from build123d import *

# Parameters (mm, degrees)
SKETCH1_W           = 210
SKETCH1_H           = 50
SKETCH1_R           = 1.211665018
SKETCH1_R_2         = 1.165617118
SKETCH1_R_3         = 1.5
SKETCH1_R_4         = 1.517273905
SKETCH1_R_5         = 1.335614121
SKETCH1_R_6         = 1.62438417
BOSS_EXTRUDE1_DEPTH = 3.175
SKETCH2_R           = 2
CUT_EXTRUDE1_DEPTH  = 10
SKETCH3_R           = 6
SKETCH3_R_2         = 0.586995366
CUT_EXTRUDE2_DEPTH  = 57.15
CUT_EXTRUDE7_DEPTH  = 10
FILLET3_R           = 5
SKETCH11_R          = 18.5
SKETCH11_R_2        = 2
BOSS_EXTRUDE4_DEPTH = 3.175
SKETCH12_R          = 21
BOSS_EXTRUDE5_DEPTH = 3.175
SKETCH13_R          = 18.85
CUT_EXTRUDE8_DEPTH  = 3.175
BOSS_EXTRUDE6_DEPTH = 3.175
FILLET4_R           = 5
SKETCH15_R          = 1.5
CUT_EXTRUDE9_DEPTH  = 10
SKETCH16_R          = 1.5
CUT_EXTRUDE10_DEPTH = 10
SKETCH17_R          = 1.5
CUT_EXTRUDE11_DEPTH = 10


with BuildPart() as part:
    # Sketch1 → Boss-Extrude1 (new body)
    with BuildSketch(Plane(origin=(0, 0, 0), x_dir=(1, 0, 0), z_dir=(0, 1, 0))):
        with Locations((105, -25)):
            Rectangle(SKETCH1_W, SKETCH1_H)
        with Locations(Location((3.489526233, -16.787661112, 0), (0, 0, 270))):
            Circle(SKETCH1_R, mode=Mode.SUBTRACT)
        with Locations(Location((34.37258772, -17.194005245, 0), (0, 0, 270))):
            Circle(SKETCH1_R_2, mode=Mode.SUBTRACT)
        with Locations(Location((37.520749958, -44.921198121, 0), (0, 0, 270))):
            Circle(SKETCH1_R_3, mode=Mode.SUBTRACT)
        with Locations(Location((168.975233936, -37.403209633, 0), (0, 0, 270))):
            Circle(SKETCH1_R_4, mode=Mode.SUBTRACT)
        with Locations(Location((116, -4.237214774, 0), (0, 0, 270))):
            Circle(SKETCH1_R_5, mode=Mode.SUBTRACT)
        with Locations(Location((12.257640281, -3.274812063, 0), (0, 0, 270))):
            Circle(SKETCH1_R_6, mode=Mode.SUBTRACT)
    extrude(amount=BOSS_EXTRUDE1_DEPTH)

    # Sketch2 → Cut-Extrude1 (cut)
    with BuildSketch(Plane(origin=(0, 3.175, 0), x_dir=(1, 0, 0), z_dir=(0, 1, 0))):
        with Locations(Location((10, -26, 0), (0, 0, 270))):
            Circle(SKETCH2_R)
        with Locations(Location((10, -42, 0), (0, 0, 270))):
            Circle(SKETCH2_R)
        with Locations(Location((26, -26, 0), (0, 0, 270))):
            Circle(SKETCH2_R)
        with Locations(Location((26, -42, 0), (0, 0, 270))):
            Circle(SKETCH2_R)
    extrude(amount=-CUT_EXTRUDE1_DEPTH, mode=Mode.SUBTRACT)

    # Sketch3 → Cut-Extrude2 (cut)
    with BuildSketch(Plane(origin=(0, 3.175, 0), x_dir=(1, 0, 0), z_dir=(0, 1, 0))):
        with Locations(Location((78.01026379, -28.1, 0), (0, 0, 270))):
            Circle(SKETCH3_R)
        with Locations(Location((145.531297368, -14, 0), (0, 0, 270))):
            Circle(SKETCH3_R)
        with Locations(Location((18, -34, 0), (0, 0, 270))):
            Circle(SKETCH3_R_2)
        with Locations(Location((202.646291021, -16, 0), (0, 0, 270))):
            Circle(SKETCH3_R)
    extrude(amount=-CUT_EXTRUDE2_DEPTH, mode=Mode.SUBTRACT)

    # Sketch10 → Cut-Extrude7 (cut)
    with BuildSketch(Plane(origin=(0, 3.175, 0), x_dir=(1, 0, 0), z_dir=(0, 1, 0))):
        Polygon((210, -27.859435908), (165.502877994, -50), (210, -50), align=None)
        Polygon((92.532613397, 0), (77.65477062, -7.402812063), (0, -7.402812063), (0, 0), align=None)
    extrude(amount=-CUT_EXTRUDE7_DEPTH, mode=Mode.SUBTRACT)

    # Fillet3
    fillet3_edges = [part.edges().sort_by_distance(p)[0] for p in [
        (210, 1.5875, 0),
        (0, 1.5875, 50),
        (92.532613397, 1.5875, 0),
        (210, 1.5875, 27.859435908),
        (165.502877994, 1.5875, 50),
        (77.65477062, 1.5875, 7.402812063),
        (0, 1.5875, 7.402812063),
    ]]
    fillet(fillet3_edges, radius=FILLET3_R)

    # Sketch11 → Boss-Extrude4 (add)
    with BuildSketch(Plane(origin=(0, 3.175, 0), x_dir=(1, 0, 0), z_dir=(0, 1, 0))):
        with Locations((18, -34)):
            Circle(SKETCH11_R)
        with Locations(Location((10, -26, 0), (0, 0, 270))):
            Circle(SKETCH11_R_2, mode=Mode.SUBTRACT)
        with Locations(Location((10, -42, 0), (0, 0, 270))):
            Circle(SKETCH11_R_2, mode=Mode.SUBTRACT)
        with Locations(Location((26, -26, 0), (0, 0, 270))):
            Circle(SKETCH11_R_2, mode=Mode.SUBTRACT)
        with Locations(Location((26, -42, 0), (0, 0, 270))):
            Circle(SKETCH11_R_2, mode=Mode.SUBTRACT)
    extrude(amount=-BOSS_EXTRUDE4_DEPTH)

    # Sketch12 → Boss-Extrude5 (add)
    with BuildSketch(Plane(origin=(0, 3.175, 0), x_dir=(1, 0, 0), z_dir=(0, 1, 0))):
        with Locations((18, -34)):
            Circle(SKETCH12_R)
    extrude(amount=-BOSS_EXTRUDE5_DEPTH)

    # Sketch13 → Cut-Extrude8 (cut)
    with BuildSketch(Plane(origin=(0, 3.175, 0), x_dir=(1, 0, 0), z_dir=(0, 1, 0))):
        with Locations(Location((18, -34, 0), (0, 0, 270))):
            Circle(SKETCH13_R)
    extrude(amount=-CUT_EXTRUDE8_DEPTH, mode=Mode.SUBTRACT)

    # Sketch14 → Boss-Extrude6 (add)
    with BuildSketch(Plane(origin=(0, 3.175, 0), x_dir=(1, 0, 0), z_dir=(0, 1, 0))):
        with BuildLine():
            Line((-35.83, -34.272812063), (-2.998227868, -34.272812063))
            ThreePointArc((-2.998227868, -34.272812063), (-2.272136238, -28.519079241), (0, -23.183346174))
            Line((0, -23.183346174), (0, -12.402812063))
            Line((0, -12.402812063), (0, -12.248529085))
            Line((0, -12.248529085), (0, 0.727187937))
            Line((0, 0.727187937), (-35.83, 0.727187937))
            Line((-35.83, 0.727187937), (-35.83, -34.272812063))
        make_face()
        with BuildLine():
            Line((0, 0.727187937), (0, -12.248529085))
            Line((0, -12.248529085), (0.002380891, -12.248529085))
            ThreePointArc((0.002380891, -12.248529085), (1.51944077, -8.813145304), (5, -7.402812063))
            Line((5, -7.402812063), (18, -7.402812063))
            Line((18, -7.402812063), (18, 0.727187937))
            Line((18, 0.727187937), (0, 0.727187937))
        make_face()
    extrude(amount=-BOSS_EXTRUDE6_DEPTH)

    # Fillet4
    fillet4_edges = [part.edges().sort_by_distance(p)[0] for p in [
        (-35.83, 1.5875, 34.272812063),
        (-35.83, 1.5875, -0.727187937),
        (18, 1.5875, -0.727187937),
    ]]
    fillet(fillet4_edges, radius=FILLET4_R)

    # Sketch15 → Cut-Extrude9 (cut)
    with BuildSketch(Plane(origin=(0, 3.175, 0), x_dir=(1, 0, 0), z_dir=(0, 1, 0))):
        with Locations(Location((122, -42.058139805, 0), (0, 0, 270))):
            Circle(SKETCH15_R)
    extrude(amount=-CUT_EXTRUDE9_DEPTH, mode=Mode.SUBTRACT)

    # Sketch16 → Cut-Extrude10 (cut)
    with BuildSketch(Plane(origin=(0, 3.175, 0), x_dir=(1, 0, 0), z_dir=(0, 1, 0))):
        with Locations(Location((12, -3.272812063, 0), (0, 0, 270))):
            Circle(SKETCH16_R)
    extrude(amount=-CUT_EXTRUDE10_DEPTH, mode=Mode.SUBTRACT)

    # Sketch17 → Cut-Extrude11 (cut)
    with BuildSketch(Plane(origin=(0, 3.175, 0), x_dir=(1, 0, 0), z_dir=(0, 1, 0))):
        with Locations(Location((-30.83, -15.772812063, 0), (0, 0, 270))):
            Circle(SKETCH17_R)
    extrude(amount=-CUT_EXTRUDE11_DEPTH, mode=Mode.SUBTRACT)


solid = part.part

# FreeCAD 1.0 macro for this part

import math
import FreeCAD as App
import Part
import Sketcher
from FreeCAD import Vector
Q = App.Units.Quantity


def edges_at(feature, points):
    """Names of the edges that pass closest to the given points."""
    edges = feature.Shape.Edges
    near = lambda p: min(range(len(edges)), key=lambda i: edges[i].distToShape(Part.Vertex(*p))[0])
    return sorted({f"Edge{near(p) + 1}" for p in points})

doc = App.newDocument("Part")
body = doc.addObject("PartDesign::Body", "Body")

sketch1 = body.newObject("Sketcher::SketchObject", "Sketch")
sketch1.AttachmentSupport = (doc.getObject("XZ_Plane"), [""])
sketch1.MapMode = "FlatFace"
sketch1.addGeometry(Part.LineSegment(Vector(0, 0, 0), Vector(0, 50, 0)), False)
sketch1.addGeometry(Part.LineSegment(Vector(0, 50, 0), Vector(210, 50, 0)), False)
sketch1.addGeometry(Part.LineSegment(Vector(210, 50, 0), Vector(210, 0, 0)), False)
sketch1.addGeometry(Part.LineSegment(Vector(210, 0, 0), Vector(0, 0, 0)), False)
sketch1.addGeometry(Part.Circle(Vector(37.52075, 44.921198, 0), Vector(0, 0, 1), 1.5), False)
sketch1.addGeometry(Part.Circle(Vector(168.975234, 37.40321, 0), Vector(0, 0, 1), 1.517274), False)
sketch1.addGeometry(Part.Circle(Vector(3.489526, 16.787661, 0), Vector(0, 0, 1), 1.211665), False)
sketch1.addGeometry(Part.Circle(Vector(34.372588, 17.194005, 0), Vector(0, 0, 1), 1.165617), False)
sketch1.addGeometry(Part.Circle(Vector(12.25764, 3.274812, 0), Vector(0, 0, 1), 1.624384), False)
sketch1.addGeometry(Part.Circle(Vector(116, 4.237215, 0), Vector(0, 0, 1), 1.335614), False)
sketch1.addConstraint(Sketcher.Constraint("Coincident", 0, 2, 1, 1))
sketch1.addConstraint(Sketcher.Constraint("Coincident", 1, 2, 2, 1))
sketch1.addConstraint(Sketcher.Constraint("Coincident", 2, 2, 3, 1))
sketch1.addConstraint(Sketcher.Constraint("Coincident", 3, 2, 0, 1))
sketch1.addConstraint(Sketcher.Constraint("Vertical", 0))
sketch1.addConstraint(Sketcher.Constraint("Horizontal", 1))
sketch1.addConstraint(Sketcher.Constraint("Vertical", 2))
sketch1.addConstraint(Sketcher.Constraint("Horizontal", 3))
sketch1.addConstraint(Sketcher.Constraint("Coincident", 3, 2, -1, 1))
sketch1.addConstraint(Sketcher.Constraint("Diameter", 4, Q("3 mm")))
sketch1.addConstraint(Sketcher.Constraint("DistanceX", 1, 1, 1, 2, Q("210 mm")))
sketch1.addConstraint(Sketcher.Constraint("DistanceY", 0, 1, 0, 2, Q("50 mm")))
sketch1.addConstraint(Sketcher.Constraint("DistanceX", -1, 1, 9, 3, Q("116 mm")))
sketch1.addConstraint(Sketcher.Constraint("Diameter", 6, Q("2.42333 mm")))
sketch1.addConstraint(Sketcher.Constraint("Diameter", 8, Q("3.248768 mm")))
sketch1.addConstraint(Sketcher.Constraint("Diameter", 9, Q("2.671228 mm")))
sketch1.addConstraint(Sketcher.Constraint("Diameter", 5, Q("3.034548 mm")))
sketch1.addConstraint(Sketcher.Constraint("Diameter", 7, Q("2.331234 mm")))
sketch1.addConstraint(Sketcher.Constraint("DistanceY", -1, 1, 4, 3, Q("44.921198 mm")))
sketch1.addConstraint(Sketcher.Constraint("DistanceX", -1, 1, 4, 3, Q("37.52075 mm")))
sketch1.addConstraint(Sketcher.Constraint("DistanceY", -1, 1, 5, 3, Q("37.40321 mm")))
sketch1.addConstraint(Sketcher.Constraint("DistanceY", -1, 1, 6, 3, Q("16.787661 mm")))
sketch1.addConstraint(Sketcher.Constraint("DistanceX", -1, 1, 8, 3, Q("12.25764 mm")))
sketch1.addConstraint(Sketcher.Constraint("DistanceX", 6, 3, 7, 3, Q("30.883061 mm")))
sketch1.addConstraint(Sketcher.Constraint("DistanceY", 8, 3, 6, 3, Q("13.512849 mm")))
sketch1.addConstraint(Sketcher.Constraint("DistanceY", 9, 3, 7, 3, Q("12.95679 mm")))
sketch1.addConstraint(Sketcher.Constraint("DistanceX", -1, 1, 5, 3, Q("168.975234 mm")))
sketch1.addConstraint(Sketcher.Constraint("DistanceX", -1, 1, 6, 3, Q("3.489526 mm")))
sketch1.addConstraint(Sketcher.Constraint("DistanceY", -1, 1, 7, 3, Q("17.194005 mm")))
pad1 = body.newObject("PartDesign::Pad", "Pad")
pad1.Profile = sketch1
pad1.Length = 3.175
pad1.Reversed = True

sketch2 = body.newObject("Sketcher::SketchObject", "Sketch001")
sketch2.AttachmentSupport = (doc.getObject("XZ_Plane"), [""])
sketch2.MapMode = "FlatFace"
sketch2.AttachmentOffset = App.Placement(Vector(0, 0, -3.175), App.Rotation())
sketch2.addGeometry(Part.Circle(Vector(10, 26, 0), Vector(0, 0, 1), 2), False)
sketch2.addGeometry(Part.Circle(Vector(10, 42, 0), Vector(0, 0, 1), 2), False)
sketch2.addGeometry(Part.Circle(Vector(26, 26, 0), Vector(0, 0, 1), 2), False)
sketch2.addGeometry(Part.Circle(Vector(26, 42, 0), Vector(0, 0, 1), 2), False)
sketch2.addConstraint(Sketcher.Constraint("Equal", 0, 1))
sketch2.addConstraint(Sketcher.Constraint("Equal", 1, 2))
sketch2.addConstraint(Sketcher.Constraint("Equal", 2, 3))
sketch2.addConstraint(Sketcher.Constraint("Horizontal", 0, 3, 2, 3))
sketch2.addConstraint(Sketcher.Constraint("Horizontal", 1, 3, 3, 3))
sketch2.addConstraint(Sketcher.Constraint("Vertical", 0, 3, 1, 3))
sketch2.addConstraint(Sketcher.Constraint("Vertical", 2, 3, 3, 3))
sketch2.addConstraint(Sketcher.Constraint("Diameter", 0, Q("4 mm")))
sketch2.addConstraint(Sketcher.Constraint("DistanceX", -1, 1, 0, 3, Q("10 mm")))
sketch2.addConstraint(Sketcher.Constraint("DistanceY", -1, 1, 0, 3, Q("26 mm")))
sketch2.addConstraint(Sketcher.Constraint("DistanceY", -1, 1, 1, 3, Q("42 mm")))
sketch2.addConstraint(Sketcher.Constraint("DistanceX", -1, 1, 2, 3, Q("26 mm")))
pocket1 = body.newObject("PartDesign::Pocket", "Pocket")
pocket1.Profile = sketch2
pocket1.Length = 10
pocket1.Reversed = True

sketch3 = body.newObject("Sketcher::SketchObject", "Sketch002")
sketch3.AttachmentSupport = (doc.getObject("XZ_Plane"), [""])
sketch3.MapMode = "FlatFace"
sketch3.AttachmentOffset = App.Placement(Vector(0, 0, -3.175), App.Rotation())
sketch3.addGeometry(Part.Circle(Vector(78.010264, 28.1, 0), Vector(0, 0, 1), 6), False)
sketch3.addGeometry(Part.Circle(Vector(145.531297, 14, 0), Vector(0, 0, 1), 6), False)
sketch3.addGeometry(Part.Circle(Vector(18, 34, 0), Vector(0, 0, 1), 0.586995), False)
sketch3.addGeometry(Part.Circle(Vector(202.646291, 16, 0), Vector(0, 0, 1), 6), False)
sketch3.addConstraint(Sketcher.Constraint("Equal", 0, 1))
sketch3.addConstraint(Sketcher.Constraint("Equal", 1, 3))
sketch3.addConstraint(Sketcher.Constraint("Diameter", 0, Q("12 mm")))
sketch3.addConstraint(Sketcher.Constraint("DistanceY", -1, 1, 1, 3, Q("14 mm")))
sketch3.addConstraint(Sketcher.Constraint("DistanceX", -1, 1, 2, 3, Q("18 mm")))
sketch3.addConstraint(Sketcher.Constraint("DistanceY", -1, 1, 2, 3, Q("34 mm")))
sketch3.addConstraint(Sketcher.Constraint("DistanceY", -1, 1, 3, 3, Q("16 mm")))
sketch3.addConstraint(Sketcher.Constraint("DistanceY", -1, 1, 0, 3, Q("28.1 mm")))
sketch3.addConstraint(Sketcher.Constraint("Diameter", 2, Q("1.173991 mm")))
sketch3.addConstraint(Sketcher.Constraint("DistanceX", -1, 1, 3, 3, Q("202.646291 mm")))
sketch3.addConstraint(Sketcher.Constraint("DistanceX", -1, 1, 0, 3, Q("78.010264 mm")))
sketch3.addConstraint(Sketcher.Constraint("DistanceX", -1, 1, 1, 3, Q("145.531297 mm")))
pocket2 = body.newObject("PartDesign::Pocket", "Pocket001")
pocket2.Profile = sketch3
pocket2.Length = 57.15
pocket2.Reversed = True

sketch4 = body.newObject("Sketcher::SketchObject", "Sketch003")
sketch4.AttachmentSupport = (doc.getObject("XZ_Plane"), [""])
sketch4.MapMode = "FlatFace"
sketch4.AttachmentOffset = App.Placement(Vector(0, 0, -3.175), App.Rotation())
sketch4.addGeometry(Part.LineSegment(Vector(210, 27.859436, 0), Vector(165.502878, 50, 0)), False)
sketch4.addGeometry(Part.LineSegment(Vector(165.502878, 50, 0), Vector(210, 50, 0)), False)
sketch4.addGeometry(Part.LineSegment(Vector(210, 50, 0), Vector(210, 27.859436, 0)), False)
sketch4.addGeometry(Part.LineSegment(Vector(77.654771, 7.402812, 0), Vector(92.532613, 0, 0)), False)
sketch4.addGeometry(Part.LineSegment(Vector(92.532613, 0, 0), Vector(0, 0, 0)), False)
sketch4.addGeometry(Part.LineSegment(Vector(0, 0, 0), Vector(0, 7.402812, 0)), False)
sketch4.addGeometry(Part.LineSegment(Vector(0, 7.402812, 0), Vector(77.654771, 7.402812, 0)), False)
sketch4.addConstraint(Sketcher.Constraint("Coincident", 0, 2, 1, 1))
sketch4.addConstraint(Sketcher.Constraint("Coincident", 1, 2, 2, 1))
sketch4.addConstraint(Sketcher.Constraint("Coincident", 2, 2, 0, 1))
sketch4.addConstraint(Sketcher.Constraint("Coincident", 3, 2, 4, 1))
sketch4.addConstraint(Sketcher.Constraint("Coincident", 4, 2, 5, 1))
sketch4.addConstraint(Sketcher.Constraint("Coincident", 5, 2, 6, 1))
sketch4.addConstraint(Sketcher.Constraint("Coincident", 6, 2, 3, 1))
sketch4.addConstraint(Sketcher.Constraint("Horizontal", 1))
sketch4.addConstraint(Sketcher.Constraint("Vertical", 2))
sketch4.addConstraint(Sketcher.Constraint("Horizontal", 4))
sketch4.addConstraint(Sketcher.Constraint("Vertical", 5))
sketch4.addConstraint(Sketcher.Constraint("Horizontal", 6))
sketch4.addConstraint(Sketcher.Constraint("Coincident", 4, 2, -1, 1))
sketch4.addConstraint(Sketcher.Constraint("Parallel", 0, 3))
sketch4.addConstraint(Sketcher.Constraint("DistanceY", -1, 1, 0, 2, Q("50 mm")))
sketch4.addConstraint(Sketcher.Constraint("DistanceX", -1, 1, 1, 2, Q("210 mm")))
sketch4.addConstraint(Sketcher.Constraint("DistanceX", 6, 1, 6, 2, Q("77.654771 mm")))
sketch4.addConstraint(Sketcher.Constraint("Distance", 0, Q("49.701091 mm")))
sketch4.addConstraint(Sketcher.Constraint("DistanceX", 1, 1, 1, 2, Q("44.497122 mm")))
sketch4.addConstraint(Sketcher.Constraint("DistanceX", 4, 2, 4, 1, Q("92.532613 mm")))
pocket3 = body.newObject("PartDesign::Pocket", "Pocket002")
pocket3.Profile = sketch4
pocket3.Length = 10
pocket3.Reversed = True
doc.recompute()

fillet = body.newObject("PartDesign::Fillet", "Fillet")
fillet.Base = (pocket3, edges_at(pocket3, [
    (210, 1.587, 0),
    (0, 1.587, 50),
    (92.533, 1.587, 0),
    (210, 1.587, 27.859),
    (165.503, 1.587, 50),
    (77.655, 1.587, 7.403),
    (0, 1.587, 7.403),
]))
fillet.Radius = 5

sketch5 = body.newObject("Sketcher::SketchObject", "Sketch004")
sketch5.AttachmentSupport = (doc.getObject("XZ_Plane"), [""])
sketch5.MapMode = "FlatFace"
sketch5.AttachmentOffset = App.Placement(Vector(0, 0, -3.175), App.Rotation())
sketch5.addGeometry(Part.Circle(Vector(18, 34, 0), Vector(0, 0, 1), 18.5), False)
sketch5.addGeometry(Part.Circle(Vector(10, 42, 0), Vector(0, 0, 1), 2), False)
sketch5.addGeometry(Part.Circle(Vector(26, 42, 0), Vector(0, 0, 1), 2), False)
sketch5.addGeometry(Part.Circle(Vector(10, 26, 0), Vector(0, 0, 1), 2), False)
sketch5.addGeometry(Part.Circle(Vector(26, 26, 0), Vector(0, 0, 1), 2), False)
sketch5.addConstraint(Sketcher.Constraint("Equal", 1, 2))
sketch5.addConstraint(Sketcher.Constraint("Equal", 2, 3))
sketch5.addConstraint(Sketcher.Constraint("Equal", 3, 4))
sketch5.addConstraint(Sketcher.Constraint("Horizontal", 1, 3, 2, 3))
sketch5.addConstraint(Sketcher.Constraint("Horizontal", 3, 3, 4, 3))
sketch5.addConstraint(Sketcher.Constraint("Vertical", 1, 3, 3, 3))
sketch5.addConstraint(Sketcher.Constraint("Vertical", 2, 3, 4, 3))
sketch5.addConstraint(Sketcher.Constraint("Diameter", 0, Q("37 mm")))
sketch5.addConstraint(Sketcher.Constraint("Diameter", 1, Q("4 mm")))
sketch5.addConstraint(Sketcher.Constraint("DistanceX", -1, 1, 0, 3, Q("18 mm")))
sketch5.addConstraint(Sketcher.Constraint("DistanceY", -1, 1, 0, 3, Q("34 mm")))
sketch5.addConstraint(Sketcher.Constraint("DistanceX", -1, 1, 1, 3, Q("10 mm")))
sketch5.addConstraint(Sketcher.Constraint("DistanceY", -1, 1, 1, 3, Q("42 mm")))
sketch5.addConstraint(Sketcher.Constraint("DistanceX", -1, 1, 2, 3, Q("26 mm")))
sketch5.addConstraint(Sketcher.Constraint("DistanceY", -1, 1, 3, 3, Q("26 mm")))
pad2 = body.newObject("PartDesign::Pad", "Pad001")
pad2.Profile = sketch5
pad2.Length = 3.175

sketch6 = body.newObject("Sketcher::SketchObject", "Sketch005")
sketch6.AttachmentSupport = (doc.getObject("XZ_Plane"), [""])
sketch6.MapMode = "FlatFace"
sketch6.AttachmentOffset = App.Placement(Vector(0, 0, -3.175), App.Rotation())
sketch6.addGeometry(Part.Circle(Vector(18, 34, 0), Vector(0, 0, 1), 21), False)
sketch6.addConstraint(Sketcher.Constraint("Diameter", 0, Q("42 mm")))
sketch6.addConstraint(Sketcher.Constraint("DistanceX", -1, 1, 0, 3, Q("18 mm")))
sketch6.addConstraint(Sketcher.Constraint("DistanceY", -1, 1, 0, 3, Q("34 mm")))
pad3 = body.newObject("PartDesign::Pad", "Pad002")
pad3.Profile = sketch6
pad3.Length = 3.175

sketch7 = body.newObject("Sketcher::SketchObject", "Sketch006")
sketch7.AttachmentSupport = (doc.getObject("XZ_Plane"), [""])
sketch7.MapMode = "FlatFace"
sketch7.AttachmentOffset = App.Placement(Vector(0, 0, -3.175), App.Rotation())
sketch7.addGeometry(Part.Circle(Vector(18, 34, 0), Vector(0, 0, 1), 18.85), False)
sketch7.addConstraint(Sketcher.Constraint("Diameter", 0, Q("37.7 mm")))
sketch7.addConstraint(Sketcher.Constraint("DistanceX", -1, 1, 0, 3, Q("18 mm")))
sketch7.addConstraint(Sketcher.Constraint("DistanceY", -1, 1, 0, 3, Q("34 mm")))
pocket4 = body.newObject("PartDesign::Pocket", "Pocket003")
pocket4.Profile = sketch7
pocket4.Length = 3.175
pocket4.Reversed = True

sketch8 = body.newObject("Sketcher::SketchObject", "Sketch007")
sketch8.AttachmentSupport = (doc.getObject("XZ_Plane"), [""])
sketch8.MapMode = "FlatFace"
sketch8.AttachmentOffset = App.Placement(Vector(0, 0, -3.175), App.Rotation())
sketch8.addGeometry(Part.LineSegment(Vector(-35.83, 34.272812, 0), Vector(-2.998228, 34.272812, 0)), False)
sketch8.addGeometry(Part.ArcOfCircle(Part.Circle(Vector(18, 34, 0), Vector(0, 0, 1), 21), math.radians(179.255647), math.radians(211.002719)), False)
sketch8.addGeometry(Part.LineSegment(Vector(0, 23.183346, 0), Vector(0, 12.248529, 0)), False)
sketch8.addGeometry(Part.LineSegment(Vector(0, 12.248529, 0), Vector(0.002381, 12.248529, 0)), False)
sketch8.addGeometry(Part.ArcOfCircle(Part.Circle(Vector(5, 12.402812, 0), Vector(0, 0, 1), 5), math.radians(-178.231767), math.radians(-90)), False)
sketch8.addGeometry(Part.LineSegment(Vector(5, 7.402812, 0), Vector(18, 7.402812, 0)), False)
sketch8.addGeometry(Part.LineSegment(Vector(18, 7.402812, 0), Vector(18, -0.727188, 0)), False)
sketch8.addGeometry(Part.LineSegment(Vector(18, -0.727188, 0), Vector(-35.83, -0.727188, 0)), False)
sketch8.addGeometry(Part.LineSegment(Vector(-35.83, -0.727188, 0), Vector(-35.83, 34.272812, 0)), False)
sketch8.addConstraint(Sketcher.Constraint("Coincident", 0, 2, 1, 1))
sketch8.addConstraint(Sketcher.Constraint("Coincident", 1, 2, 2, 1))
sketch8.addConstraint(Sketcher.Constraint("Coincident", 2, 2, 3, 1))
sketch8.addConstraint(Sketcher.Constraint("Coincident", 3, 2, 4, 1))
sketch8.addConstraint(Sketcher.Constraint("Tangent", 4, 2, 5, 1))
sketch8.addConstraint(Sketcher.Constraint("Coincident", 5, 2, 6, 1))
sketch8.addConstraint(Sketcher.Constraint("Coincident", 6, 2, 7, 1))
sketch8.addConstraint(Sketcher.Constraint("Coincident", 7, 2, 8, 1))
sketch8.addConstraint(Sketcher.Constraint("Coincident", 8, 2, 0, 1))
sketch8.addConstraint(Sketcher.Constraint("Horizontal", 0))
sketch8.addConstraint(Sketcher.Constraint("Vertical", 2))
sketch8.addConstraint(Sketcher.Constraint("Horizontal", 3))
sketch8.addConstraint(Sketcher.Constraint("Horizontal", 5))
sketch8.addConstraint(Sketcher.Constraint("Vertical", 6))
sketch8.addConstraint(Sketcher.Constraint("Horizontal", 7))
sketch8.addConstraint(Sketcher.Constraint("Vertical", 8))
sketch8.addConstraint(Sketcher.Constraint("PointOnObject", 1, 2, -2))
sketch8.addConstraint(Sketcher.Constraint("Vertical", 1, 3, 5, 2))
sketch8.addConstraint(Sketcher.Constraint("Radius", 1, Q("21 mm")))
sketch8.addConstraint(Sketcher.Constraint("Radius", 4, Q("5 mm")))
sketch8.addConstraint(Sketcher.Constraint("DistanceX", 5, 1, 5, 2, Q("13 mm")))
sketch8.addConstraint(Sketcher.Constraint("DistanceY", 8, 1, 8, 2, Q("35 mm")))
sketch8.addConstraint(Sketcher.Constraint("DistanceX", -1, 1, 1, 3, Q("18 mm")))
sketch8.addConstraint(Sketcher.Constraint("DistanceY", -1, 1, 1, 3, Q("34 mm")))
sketch8.addConstraint(Sketcher.Constraint("DistanceX", 7, 2, 7, 1, Q("53.83 mm")))
sketch8.addConstraint(Sketcher.Constraint("DistanceY", 6, 2, 6, 1, Q("8.13 mm")))
sketch8.addConstraint(Sketcher.Constraint("DistanceX", 3, 1, 3, 2, Q("0.002381 mm")))
sketch8.addConstraint(Sketcher.Constraint("DistanceX", 0, 1, 0, 2, Q("32.831772 mm")))
pad4 = body.newObject("PartDesign::Pad", "Pad003")
pad4.Profile = sketch8
pad4.Length = 3.175
doc.recompute()

fillet2 = body.newObject("PartDesign::Fillet", "Fillet001")
fillet2.Base = (pad4, edges_at(pad4, [(-35.83, 1.587, 34.273), (-35.83, 1.587, -0.727), (18, 1.587, -0.727)]))
fillet2.Radius = 5

sketch9 = body.newObject("Sketcher::SketchObject", "Sketch008")
sketch9.AttachmentSupport = (doc.getObject("XZ_Plane"), [""])
sketch9.MapMode = "FlatFace"
sketch9.AttachmentOffset = App.Placement(Vector(0, 0, -3.175), App.Rotation())
sketch9.addGeometry(Part.Circle(Vector(122, 42.05814, 0), Vector(0, 0, 1), 1.5), False)
sketch9.addConstraint(Sketcher.Constraint("Diameter", 0, Q("3 mm")))
sketch9.addConstraint(Sketcher.Constraint("DistanceX", -1, 1, 0, 3, Q("122 mm")))
sketch9.addConstraint(Sketcher.Constraint("DistanceY", -1, 1, 0, 3, Q("42.05814 mm")))
pocket5 = body.newObject("PartDesign::Pocket", "Pocket004")
pocket5.Profile = sketch9
pocket5.Length = 10
pocket5.Reversed = True

sketch10 = body.newObject("Sketcher::SketchObject", "Sketch009")
sketch10.AttachmentSupport = (doc.getObject("XZ_Plane"), [""])
sketch10.MapMode = "FlatFace"
sketch10.AttachmentOffset = App.Placement(Vector(0, 0, -3.175), App.Rotation())
sketch10.addGeometry(Part.Circle(Vector(12, 3.272812, 0), Vector(0, 0, 1), 1.5), False)
sketch10.addConstraint(Sketcher.Constraint("Diameter", 0, Q("3 mm")))
sketch10.addConstraint(Sketcher.Constraint("DistanceX", -1, 1, 0, 3, Q("12 mm")))
sketch10.addConstraint(Sketcher.Constraint("DistanceY", -1, 1, 0, 3, Q("3.272812 mm")))
pocket6 = body.newObject("PartDesign::Pocket", "Pocket005")
pocket6.Profile = sketch10
pocket6.Length = 10
pocket6.Reversed = True

sketch11 = body.newObject("Sketcher::SketchObject", "Sketch010")
sketch11.AttachmentSupport = (doc.getObject("XZ_Plane"), [""])
sketch11.MapMode = "FlatFace"
sketch11.AttachmentOffset = App.Placement(Vector(0, 0, -3.175), App.Rotation())
sketch11.addGeometry(Part.Circle(Vector(-30.83, 15.772812, 0), Vector(0, 0, 1), 1.5), False)
sketch11.addConstraint(Sketcher.Constraint("Diameter", 0, Q("3 mm")))
sketch11.addConstraint(Sketcher.Constraint("DistanceX", 0, 3, -1, 1, Q("30.83 mm")))
sketch11.addConstraint(Sketcher.Constraint("DistanceY", -1, 1, 0, 3, Q("15.772812 mm")))
pocket7 = body.newObject("PartDesign::Pocket", "Pocket006")
pocket7.Profile = sketch11
pocket7.Length = 10
pocket7.Reversed = True

doc.recompute()
